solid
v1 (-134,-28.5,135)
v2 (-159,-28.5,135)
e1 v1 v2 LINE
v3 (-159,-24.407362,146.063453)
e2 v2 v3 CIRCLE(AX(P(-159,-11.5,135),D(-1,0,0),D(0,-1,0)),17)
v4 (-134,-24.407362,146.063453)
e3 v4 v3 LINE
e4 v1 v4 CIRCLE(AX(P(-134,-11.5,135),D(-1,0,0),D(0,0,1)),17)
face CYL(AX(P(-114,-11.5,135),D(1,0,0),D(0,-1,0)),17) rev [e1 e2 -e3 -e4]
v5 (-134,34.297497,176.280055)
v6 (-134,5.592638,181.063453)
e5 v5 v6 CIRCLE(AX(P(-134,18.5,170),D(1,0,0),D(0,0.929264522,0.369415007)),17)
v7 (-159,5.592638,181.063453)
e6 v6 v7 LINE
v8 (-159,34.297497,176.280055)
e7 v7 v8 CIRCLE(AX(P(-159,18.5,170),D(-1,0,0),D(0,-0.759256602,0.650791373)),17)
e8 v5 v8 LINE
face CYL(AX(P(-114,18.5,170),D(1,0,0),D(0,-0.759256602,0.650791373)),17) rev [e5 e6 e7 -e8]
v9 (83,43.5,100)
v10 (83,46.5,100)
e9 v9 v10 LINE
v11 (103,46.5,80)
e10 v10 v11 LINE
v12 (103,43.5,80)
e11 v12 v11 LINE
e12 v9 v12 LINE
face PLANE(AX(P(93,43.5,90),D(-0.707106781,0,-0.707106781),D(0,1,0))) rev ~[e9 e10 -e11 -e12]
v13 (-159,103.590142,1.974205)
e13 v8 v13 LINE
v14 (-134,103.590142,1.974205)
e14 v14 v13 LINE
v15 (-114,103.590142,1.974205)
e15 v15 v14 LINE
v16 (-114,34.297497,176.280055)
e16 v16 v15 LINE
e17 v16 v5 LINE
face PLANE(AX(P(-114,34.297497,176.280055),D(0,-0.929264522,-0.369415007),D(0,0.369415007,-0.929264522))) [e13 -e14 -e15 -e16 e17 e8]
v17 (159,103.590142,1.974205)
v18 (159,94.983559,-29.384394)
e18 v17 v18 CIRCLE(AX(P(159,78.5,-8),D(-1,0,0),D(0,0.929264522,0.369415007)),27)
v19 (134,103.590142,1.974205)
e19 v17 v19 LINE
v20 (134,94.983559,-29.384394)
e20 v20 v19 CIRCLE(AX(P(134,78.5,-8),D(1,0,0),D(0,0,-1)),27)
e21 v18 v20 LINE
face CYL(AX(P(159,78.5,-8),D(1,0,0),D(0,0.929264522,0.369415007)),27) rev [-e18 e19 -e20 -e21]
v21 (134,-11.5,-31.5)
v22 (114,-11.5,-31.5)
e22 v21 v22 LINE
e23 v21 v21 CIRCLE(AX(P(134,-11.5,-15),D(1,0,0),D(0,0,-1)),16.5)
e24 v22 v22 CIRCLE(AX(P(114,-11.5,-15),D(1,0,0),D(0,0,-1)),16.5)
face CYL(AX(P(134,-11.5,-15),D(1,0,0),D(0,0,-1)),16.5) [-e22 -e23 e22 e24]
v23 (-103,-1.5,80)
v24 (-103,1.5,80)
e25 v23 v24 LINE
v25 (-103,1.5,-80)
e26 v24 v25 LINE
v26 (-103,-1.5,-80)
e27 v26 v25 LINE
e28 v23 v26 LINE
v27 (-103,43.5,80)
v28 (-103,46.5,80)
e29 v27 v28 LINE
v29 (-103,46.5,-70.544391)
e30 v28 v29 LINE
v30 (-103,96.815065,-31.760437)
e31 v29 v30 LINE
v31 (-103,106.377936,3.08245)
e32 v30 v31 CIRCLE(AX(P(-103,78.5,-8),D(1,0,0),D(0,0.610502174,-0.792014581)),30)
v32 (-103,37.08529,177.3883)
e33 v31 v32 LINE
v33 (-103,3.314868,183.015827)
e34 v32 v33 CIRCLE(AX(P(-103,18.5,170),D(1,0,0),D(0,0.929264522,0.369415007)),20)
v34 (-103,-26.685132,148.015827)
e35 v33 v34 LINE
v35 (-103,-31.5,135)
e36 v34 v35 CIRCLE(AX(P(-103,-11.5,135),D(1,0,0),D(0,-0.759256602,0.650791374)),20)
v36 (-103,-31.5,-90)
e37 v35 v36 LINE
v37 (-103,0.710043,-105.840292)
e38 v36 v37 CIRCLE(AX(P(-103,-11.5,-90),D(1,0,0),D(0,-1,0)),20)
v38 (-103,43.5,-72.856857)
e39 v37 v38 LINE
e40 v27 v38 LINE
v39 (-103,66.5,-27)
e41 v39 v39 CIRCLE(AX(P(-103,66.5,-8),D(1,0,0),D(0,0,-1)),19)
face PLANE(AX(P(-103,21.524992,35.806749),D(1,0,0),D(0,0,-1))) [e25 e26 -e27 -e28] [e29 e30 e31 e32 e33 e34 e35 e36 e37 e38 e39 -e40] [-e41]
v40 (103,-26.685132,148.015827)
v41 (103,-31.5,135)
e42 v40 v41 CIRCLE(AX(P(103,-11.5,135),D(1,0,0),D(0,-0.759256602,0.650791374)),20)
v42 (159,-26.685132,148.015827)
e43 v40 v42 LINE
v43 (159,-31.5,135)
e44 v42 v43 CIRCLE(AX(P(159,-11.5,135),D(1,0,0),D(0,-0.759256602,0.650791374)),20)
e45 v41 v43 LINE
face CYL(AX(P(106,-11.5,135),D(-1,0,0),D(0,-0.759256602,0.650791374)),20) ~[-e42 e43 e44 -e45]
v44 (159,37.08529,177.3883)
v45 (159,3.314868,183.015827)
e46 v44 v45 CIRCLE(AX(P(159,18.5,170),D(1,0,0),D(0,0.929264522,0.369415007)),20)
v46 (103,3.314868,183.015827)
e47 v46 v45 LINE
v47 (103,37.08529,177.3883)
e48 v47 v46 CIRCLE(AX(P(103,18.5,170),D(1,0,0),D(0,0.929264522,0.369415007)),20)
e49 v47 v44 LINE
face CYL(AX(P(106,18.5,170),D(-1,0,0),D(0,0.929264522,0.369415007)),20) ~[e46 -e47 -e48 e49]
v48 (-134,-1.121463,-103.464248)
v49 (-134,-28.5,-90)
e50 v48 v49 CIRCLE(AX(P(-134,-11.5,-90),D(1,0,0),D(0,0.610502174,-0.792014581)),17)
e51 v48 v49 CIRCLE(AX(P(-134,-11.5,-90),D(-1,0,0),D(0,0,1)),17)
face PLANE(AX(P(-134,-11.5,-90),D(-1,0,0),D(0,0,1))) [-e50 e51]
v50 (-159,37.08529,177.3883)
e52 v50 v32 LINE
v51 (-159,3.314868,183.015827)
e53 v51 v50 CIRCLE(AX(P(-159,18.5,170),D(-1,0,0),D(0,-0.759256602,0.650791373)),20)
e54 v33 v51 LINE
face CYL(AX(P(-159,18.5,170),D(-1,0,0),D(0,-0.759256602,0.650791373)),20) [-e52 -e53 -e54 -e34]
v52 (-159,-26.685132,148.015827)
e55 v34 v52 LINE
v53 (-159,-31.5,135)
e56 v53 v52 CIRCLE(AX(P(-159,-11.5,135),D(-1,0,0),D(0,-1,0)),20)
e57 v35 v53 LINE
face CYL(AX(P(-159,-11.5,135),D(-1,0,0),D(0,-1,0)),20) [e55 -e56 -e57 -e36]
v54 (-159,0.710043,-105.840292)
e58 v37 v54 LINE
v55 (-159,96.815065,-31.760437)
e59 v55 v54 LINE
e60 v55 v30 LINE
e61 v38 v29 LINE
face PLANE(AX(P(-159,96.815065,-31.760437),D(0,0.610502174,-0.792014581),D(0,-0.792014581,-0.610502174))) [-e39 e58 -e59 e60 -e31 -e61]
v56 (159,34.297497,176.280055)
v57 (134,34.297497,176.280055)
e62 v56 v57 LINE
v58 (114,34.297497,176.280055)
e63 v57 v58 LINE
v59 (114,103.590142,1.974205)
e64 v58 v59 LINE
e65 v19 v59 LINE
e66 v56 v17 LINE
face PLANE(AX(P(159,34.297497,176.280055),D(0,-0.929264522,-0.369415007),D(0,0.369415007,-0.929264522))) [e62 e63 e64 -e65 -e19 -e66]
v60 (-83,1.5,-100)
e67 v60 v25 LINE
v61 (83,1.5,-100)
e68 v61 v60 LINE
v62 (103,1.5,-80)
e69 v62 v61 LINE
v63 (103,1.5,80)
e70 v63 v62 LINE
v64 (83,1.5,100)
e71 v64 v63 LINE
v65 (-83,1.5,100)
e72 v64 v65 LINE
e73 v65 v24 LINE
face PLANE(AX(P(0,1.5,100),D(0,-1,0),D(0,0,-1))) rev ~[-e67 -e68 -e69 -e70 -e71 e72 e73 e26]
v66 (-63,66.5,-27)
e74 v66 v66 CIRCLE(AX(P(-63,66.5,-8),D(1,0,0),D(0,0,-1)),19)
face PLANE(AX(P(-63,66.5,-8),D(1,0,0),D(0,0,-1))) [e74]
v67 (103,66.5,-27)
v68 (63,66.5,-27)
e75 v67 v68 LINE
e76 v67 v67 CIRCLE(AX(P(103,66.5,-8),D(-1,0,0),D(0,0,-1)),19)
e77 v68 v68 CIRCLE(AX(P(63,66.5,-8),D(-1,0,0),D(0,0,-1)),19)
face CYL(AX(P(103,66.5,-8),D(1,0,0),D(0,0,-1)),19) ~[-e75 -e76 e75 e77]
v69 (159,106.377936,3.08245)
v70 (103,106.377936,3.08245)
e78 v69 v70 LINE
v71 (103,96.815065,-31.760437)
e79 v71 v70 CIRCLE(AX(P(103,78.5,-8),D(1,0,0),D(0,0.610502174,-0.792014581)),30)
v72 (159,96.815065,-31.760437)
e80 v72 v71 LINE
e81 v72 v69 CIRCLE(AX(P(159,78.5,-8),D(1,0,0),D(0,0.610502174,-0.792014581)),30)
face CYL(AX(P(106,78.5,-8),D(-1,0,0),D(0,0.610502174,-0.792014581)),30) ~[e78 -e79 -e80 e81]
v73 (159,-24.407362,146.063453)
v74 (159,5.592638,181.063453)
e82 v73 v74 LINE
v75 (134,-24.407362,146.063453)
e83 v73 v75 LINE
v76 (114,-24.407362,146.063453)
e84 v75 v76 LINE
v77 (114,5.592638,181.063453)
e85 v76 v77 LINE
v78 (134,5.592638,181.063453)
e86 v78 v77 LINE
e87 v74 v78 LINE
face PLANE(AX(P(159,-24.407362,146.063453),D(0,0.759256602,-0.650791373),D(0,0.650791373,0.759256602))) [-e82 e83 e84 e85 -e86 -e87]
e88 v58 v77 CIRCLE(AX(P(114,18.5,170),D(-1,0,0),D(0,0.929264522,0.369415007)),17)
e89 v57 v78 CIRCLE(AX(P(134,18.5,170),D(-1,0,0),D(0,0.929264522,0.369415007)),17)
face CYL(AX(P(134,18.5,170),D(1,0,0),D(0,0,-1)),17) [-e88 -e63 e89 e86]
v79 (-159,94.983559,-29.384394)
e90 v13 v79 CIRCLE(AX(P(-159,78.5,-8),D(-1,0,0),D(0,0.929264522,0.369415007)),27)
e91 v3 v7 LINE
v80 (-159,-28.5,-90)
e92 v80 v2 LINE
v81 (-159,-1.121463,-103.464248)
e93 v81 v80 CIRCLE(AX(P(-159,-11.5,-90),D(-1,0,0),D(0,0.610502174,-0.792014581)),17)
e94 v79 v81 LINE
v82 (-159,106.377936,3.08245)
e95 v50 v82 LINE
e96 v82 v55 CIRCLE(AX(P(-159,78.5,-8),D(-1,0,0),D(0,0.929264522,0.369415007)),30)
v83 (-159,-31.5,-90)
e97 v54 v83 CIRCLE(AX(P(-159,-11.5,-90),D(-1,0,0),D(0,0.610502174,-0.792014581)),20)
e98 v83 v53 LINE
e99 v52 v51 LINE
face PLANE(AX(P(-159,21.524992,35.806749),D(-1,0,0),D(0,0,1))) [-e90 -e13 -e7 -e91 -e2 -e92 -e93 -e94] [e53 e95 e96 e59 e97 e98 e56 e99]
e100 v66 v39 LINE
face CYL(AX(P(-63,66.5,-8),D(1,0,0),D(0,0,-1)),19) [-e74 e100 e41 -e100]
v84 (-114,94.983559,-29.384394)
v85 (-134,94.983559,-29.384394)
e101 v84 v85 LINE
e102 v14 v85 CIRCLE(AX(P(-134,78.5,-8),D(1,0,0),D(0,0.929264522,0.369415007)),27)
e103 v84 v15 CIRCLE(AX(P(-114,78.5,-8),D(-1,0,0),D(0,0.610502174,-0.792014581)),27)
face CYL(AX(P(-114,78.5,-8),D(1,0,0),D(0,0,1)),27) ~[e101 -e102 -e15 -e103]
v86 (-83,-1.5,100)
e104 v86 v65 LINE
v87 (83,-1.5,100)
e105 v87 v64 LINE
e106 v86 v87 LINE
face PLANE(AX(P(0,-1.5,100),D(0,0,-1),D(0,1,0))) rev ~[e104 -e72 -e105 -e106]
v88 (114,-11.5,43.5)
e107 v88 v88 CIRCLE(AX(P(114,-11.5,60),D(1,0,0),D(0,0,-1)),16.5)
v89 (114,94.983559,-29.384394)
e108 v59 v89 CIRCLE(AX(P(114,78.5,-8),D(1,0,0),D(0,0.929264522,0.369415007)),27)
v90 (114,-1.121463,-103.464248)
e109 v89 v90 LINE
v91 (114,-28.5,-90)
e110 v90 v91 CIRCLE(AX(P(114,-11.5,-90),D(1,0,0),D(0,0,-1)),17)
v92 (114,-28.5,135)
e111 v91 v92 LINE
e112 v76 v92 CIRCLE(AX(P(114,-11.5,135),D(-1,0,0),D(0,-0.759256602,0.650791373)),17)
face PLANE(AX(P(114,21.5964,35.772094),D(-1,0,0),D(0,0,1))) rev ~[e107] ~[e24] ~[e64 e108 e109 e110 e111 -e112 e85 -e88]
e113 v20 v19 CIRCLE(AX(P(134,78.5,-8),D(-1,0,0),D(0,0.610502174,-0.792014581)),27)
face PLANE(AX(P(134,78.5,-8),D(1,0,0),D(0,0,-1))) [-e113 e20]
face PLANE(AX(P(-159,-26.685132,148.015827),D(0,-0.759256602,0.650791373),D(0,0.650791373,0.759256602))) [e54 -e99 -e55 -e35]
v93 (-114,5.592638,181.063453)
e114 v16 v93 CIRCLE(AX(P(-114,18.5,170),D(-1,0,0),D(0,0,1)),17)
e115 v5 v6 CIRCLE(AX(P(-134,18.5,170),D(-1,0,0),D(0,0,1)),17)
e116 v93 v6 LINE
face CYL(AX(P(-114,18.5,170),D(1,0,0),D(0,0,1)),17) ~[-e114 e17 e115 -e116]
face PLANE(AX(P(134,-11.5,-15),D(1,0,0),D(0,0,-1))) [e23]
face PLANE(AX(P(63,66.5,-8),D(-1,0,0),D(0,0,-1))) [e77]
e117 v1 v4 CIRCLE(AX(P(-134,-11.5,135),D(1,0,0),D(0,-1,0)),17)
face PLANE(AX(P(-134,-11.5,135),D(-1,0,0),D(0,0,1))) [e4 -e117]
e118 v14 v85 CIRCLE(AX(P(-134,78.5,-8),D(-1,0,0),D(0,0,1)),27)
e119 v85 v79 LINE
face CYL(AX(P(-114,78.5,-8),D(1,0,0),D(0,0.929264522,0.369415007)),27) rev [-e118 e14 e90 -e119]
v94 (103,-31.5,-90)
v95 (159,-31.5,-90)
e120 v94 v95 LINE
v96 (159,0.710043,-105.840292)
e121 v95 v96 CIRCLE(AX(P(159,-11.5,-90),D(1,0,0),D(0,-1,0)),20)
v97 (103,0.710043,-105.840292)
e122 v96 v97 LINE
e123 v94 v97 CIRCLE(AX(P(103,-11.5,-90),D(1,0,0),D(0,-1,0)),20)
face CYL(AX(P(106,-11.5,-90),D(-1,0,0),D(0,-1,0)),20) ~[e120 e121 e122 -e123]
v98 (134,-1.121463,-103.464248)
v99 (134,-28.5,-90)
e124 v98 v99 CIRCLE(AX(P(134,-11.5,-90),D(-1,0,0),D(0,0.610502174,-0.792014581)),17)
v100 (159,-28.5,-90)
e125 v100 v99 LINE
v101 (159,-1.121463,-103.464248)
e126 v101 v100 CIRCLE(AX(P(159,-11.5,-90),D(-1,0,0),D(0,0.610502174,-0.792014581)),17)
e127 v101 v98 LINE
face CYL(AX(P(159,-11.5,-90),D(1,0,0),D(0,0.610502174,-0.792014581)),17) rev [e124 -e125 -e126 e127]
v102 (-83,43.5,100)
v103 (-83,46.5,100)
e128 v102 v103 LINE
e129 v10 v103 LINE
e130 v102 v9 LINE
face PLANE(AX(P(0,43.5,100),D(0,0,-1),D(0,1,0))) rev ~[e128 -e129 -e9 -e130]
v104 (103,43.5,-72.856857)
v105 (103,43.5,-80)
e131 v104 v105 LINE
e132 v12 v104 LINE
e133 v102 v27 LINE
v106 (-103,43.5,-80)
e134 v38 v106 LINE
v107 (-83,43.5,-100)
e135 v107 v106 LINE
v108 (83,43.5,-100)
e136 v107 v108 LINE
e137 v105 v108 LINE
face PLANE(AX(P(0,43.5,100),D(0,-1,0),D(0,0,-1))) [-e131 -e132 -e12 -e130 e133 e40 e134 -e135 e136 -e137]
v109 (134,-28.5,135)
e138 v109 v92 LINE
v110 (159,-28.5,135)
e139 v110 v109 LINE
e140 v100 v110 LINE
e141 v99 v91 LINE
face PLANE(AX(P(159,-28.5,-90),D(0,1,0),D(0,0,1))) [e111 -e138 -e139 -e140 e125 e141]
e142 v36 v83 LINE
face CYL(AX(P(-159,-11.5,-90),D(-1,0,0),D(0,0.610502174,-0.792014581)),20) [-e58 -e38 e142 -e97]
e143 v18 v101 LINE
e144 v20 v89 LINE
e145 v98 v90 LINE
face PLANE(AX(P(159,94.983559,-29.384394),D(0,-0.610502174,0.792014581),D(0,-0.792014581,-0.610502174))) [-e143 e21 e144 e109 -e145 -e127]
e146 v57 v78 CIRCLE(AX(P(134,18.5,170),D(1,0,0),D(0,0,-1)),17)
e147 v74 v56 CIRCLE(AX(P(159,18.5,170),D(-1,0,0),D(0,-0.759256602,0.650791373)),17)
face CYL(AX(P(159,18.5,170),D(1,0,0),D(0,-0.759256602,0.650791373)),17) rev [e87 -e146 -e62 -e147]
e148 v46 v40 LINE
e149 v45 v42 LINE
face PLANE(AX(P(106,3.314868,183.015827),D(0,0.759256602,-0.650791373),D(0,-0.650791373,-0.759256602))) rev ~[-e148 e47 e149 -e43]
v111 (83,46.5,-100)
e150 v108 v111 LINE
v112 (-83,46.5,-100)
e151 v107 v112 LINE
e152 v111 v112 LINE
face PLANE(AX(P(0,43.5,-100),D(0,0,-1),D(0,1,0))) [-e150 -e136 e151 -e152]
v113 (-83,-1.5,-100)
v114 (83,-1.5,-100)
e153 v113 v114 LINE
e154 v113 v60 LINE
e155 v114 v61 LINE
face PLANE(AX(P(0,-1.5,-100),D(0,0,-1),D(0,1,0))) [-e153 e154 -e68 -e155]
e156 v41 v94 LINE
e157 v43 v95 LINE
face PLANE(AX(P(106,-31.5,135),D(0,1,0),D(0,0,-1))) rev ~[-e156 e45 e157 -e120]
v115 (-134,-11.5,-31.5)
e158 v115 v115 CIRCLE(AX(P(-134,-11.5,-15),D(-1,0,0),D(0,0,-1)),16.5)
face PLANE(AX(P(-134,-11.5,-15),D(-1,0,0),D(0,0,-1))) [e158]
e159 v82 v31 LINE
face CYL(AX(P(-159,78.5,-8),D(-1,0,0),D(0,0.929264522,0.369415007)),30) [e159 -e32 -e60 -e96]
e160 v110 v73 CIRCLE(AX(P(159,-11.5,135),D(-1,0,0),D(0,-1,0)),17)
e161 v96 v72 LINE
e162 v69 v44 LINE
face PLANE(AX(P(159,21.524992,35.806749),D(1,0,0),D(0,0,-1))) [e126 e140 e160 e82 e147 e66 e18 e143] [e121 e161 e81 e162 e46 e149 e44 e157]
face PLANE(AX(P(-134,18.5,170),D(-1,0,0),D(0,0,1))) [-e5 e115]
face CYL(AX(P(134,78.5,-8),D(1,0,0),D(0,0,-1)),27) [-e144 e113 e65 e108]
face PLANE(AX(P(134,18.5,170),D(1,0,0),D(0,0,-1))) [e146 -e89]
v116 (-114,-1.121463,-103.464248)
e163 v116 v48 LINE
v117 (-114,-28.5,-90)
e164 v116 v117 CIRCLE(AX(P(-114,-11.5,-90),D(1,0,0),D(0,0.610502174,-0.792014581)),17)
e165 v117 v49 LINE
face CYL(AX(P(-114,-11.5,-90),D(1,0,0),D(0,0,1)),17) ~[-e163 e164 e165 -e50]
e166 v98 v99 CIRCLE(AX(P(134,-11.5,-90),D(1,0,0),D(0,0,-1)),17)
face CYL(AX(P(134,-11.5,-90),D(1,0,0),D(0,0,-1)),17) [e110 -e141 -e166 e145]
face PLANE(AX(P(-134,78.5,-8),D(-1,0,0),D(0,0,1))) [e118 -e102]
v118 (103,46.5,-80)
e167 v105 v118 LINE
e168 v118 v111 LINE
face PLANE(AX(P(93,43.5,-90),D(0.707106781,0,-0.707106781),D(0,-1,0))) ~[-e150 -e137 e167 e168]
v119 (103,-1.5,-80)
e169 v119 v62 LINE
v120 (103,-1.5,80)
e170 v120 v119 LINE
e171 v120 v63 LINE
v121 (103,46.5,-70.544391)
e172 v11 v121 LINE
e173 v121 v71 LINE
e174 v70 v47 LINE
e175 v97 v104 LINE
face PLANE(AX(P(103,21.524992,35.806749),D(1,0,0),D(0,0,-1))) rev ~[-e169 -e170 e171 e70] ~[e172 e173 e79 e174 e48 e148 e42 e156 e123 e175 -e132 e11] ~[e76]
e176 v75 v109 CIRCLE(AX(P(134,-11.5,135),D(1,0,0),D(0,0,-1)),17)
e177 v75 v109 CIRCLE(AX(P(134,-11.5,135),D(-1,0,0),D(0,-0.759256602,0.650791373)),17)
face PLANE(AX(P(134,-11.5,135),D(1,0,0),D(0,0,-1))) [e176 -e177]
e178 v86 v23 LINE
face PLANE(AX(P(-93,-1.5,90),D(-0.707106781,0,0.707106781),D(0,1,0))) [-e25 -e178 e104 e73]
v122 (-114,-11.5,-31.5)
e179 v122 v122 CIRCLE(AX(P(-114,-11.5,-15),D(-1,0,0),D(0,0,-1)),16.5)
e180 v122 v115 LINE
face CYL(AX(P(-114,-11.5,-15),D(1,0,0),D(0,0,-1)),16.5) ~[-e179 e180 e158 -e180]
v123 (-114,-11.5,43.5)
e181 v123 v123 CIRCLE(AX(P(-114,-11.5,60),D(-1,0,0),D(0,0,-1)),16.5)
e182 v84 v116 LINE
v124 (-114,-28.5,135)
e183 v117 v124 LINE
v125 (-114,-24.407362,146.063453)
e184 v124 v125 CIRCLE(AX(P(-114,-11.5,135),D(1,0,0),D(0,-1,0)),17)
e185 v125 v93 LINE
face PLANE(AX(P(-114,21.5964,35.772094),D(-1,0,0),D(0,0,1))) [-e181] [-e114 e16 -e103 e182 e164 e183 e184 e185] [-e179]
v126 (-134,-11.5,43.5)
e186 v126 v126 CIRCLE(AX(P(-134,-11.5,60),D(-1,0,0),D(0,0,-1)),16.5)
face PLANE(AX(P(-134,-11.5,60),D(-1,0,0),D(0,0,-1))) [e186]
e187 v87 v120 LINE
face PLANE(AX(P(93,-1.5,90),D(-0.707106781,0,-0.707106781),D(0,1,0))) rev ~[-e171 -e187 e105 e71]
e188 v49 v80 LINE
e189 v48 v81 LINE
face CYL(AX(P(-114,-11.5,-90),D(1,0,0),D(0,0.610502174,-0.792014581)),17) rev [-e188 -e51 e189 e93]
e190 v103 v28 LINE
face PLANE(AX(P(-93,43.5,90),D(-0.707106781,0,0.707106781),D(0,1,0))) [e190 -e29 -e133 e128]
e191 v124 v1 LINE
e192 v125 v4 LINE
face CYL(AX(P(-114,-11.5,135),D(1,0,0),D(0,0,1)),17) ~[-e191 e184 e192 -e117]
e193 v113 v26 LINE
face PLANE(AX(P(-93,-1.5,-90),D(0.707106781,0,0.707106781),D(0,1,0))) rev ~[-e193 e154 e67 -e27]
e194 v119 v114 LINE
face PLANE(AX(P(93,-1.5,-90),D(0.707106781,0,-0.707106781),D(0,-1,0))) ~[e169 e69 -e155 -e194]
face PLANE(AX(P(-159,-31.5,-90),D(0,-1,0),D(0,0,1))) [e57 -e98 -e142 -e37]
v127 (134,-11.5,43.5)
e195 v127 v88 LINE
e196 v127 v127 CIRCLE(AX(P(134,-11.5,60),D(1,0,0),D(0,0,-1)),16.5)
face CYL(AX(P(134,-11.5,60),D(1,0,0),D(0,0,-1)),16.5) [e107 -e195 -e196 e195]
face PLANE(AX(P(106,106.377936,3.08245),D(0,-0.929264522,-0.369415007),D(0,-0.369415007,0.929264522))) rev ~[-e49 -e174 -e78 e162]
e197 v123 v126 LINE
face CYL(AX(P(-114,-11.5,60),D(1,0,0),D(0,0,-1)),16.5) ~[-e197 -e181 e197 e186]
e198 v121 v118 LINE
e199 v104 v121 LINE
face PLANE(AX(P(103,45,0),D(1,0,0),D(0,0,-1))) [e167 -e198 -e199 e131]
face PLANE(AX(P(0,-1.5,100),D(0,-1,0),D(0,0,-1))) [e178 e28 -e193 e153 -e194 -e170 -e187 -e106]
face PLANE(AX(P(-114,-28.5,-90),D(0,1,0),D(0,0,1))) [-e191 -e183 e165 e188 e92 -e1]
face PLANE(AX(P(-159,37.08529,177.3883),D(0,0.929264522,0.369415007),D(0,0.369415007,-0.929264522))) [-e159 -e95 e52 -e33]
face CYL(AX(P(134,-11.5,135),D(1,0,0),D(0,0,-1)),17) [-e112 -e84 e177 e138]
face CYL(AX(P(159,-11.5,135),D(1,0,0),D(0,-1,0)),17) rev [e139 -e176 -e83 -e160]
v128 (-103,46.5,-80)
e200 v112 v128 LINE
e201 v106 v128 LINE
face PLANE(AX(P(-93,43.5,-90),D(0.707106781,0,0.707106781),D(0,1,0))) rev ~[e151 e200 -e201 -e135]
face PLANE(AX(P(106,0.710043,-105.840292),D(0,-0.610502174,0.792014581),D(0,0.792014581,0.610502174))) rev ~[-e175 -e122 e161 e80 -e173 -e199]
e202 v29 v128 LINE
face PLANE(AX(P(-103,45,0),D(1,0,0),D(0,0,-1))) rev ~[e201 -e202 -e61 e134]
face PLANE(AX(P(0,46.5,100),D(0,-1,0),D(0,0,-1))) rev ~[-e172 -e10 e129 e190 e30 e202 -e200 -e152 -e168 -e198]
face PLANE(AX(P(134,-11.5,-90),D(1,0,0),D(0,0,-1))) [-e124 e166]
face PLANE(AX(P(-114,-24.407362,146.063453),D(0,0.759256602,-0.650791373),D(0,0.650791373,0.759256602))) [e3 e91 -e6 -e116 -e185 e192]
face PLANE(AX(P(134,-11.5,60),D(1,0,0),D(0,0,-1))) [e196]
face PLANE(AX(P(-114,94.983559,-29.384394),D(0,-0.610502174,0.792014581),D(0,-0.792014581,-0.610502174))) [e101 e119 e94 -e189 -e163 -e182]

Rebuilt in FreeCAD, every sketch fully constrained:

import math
import FreeCAD as App
import Part
import Sketcher

V = App.Vector


def edges_at(feature, points):
    """Names of the edges that pass closest to the given points."""
    edges = feature.Shape.Edges
    near = lambda p: min(range(len(edges)), key=lambda i: edges[i].distToShape(Part.Vertex(*p))[0])
    return sorted({f"Edge{near(p) + 1}" for p in points})


def add_polygon(sketch, points):
    """Adds a closed chain of lines whose ends are joined by coincident constraints."""
    first, n = sketch.GeometryCount, len(points)
    for a, b in zip(points, points[1:] + points[:1]):
        sketch.addGeometry(Part.LineSegment(App.Vector(*a, 0), App.Vector(*b, 0)), False)
    for i in range(n):
        sketch.addConstraint(Sketcher.Constraint("Coincident", first + i, 2, first + (i + 1) % n, 1))

doc = App.newDocument("Part")
body = doc.addObject("PartDesign::Body", "Body")

sketch1 = body.newObject("Sketcher::SketchObject", "Sketch")
sketch1.AttachmentSupport = (doc.getObject("YZ_Plane"), [""])
sketch1.MapMode = "FlatFace"
add_polygon(sketch1, [(1.5, 100), (-1.5, 100), (-1.5, -100), (1.5, -100)])
sketch1.addConstraint([
    Sketcher.Constraint("Horizontal", 0),
    Sketcher.Constraint("Vertical", 1),
    Sketcher.Constraint("Horizontal", 2),
    Sketcher.Constraint("Vertical", 3),
    Sketcher.Constraint("Symmetric", 0, 2, 2, 2, -1, 1),
    Sketcher.Constraint("DistanceX", 0, 2, 0, 1, 3.0),
    Sketcher.Constraint("DistanceY", 1, 2, 1, 1, 200.0),
])
pad1 = body.newObject("PartDesign::Pad", "Pad")
pad1.Profile = sketch1
pad1.Length = 206
pad1.Midplane = True
doc.recompute()

chamfer = body.newObject("PartDesign::Chamfer", "Chamfer")
chamfer.Base = (pad1, edges_at(pad1, [
    (103, 0, 100),
    (103, 0, -100),
    (-103, 0, 100),
    (-103, 0, -100),
]))
chamfer.Size = 20
body2 = doc.addObject("PartDesign::Body", "Body001")

sketch2 = body2.newObject("Sketcher::SketchObject", "Sketch001")
sketch2.AttachmentSupport = (doc.getObject("YZ_Plane001"), [""])
sketch2.MapMode = "FlatFace"
add_polygon(sketch2, [(46.5, 100), (43.5, 100), (43.5, -100), (46.5, -100)])
sketch2.addConstraint([
    Sketcher.Constraint("Horizontal", 0),
    Sketcher.Constraint("Vertical", 1),
    Sketcher.Constraint("Horizontal", 2),
    Sketcher.Constraint("Vertical", 3),
    Sketcher.Constraint("DistanceX", 0, 2, 0, 1, 3.0),
    Sketcher.Constraint("DistanceY", 1, 2, 1, 1, 200.0),
    Sketcher.Constraint("DistanceY", -1, 1, 0, 2, 100.0),
    Sketcher.Constraint("DistanceX", -1, 1, 0, 2, 43.5),
])
pad2 = body2.newObject("PartDesign::Pad", "Pad001")
pad2.Profile = sketch2
pad2.Length = 206
pad2.Midplane = True
doc.recompute()

chamfer2 = body2.newObject("PartDesign::Chamfer", "Chamfer001")
chamfer2.Base = (pad2, edges_at(pad2, [
    (103, 45, -100),
    (103, 45, 100),
    (-103, 45, -100),
    (-103, 45, 100),
]))
chamfer2.Size = 20
body.AllowCompound = True
doc.recompute()

boolean = body.newObject("PartDesign::Boolean", "Boolean")
boolean.Type = "Fuse"
boolean.addObjects([body2])

sketch3 = body.newObject("Sketcher::SketchObject", "Sketch002")
sketch3.AttachmentSupport = (doc.getObject("YZ_Plane"), [""])
sketch3.MapMode = "FlatFace"
sketch3.AttachmentOffset = App.Placement(V(0, 0, 103), App.Rotation())
sketch3.addGeometry([
    Part.LineSegment(V(1, -106, 0), V(97, -32, 0)),
    Part.ArcOfCircle(Part.Circle(V(78, -8, 0), V(0, 0, 1), 30), math.radians(-52), math.radians(22)),
    Part.LineSegment(V(106, 3, 0), V(37, 177, 0)),
    Part.ArcOfCircle(Part.Circle(V(18, 170, 0), V(0, 0, 1), 20), math.radians(22), math.radians(139)),
    Part.LineSegment(V(3, 183, 0), V(-27, 148, 0)),
    Part.ArcOfCircle(Part.Circle(V(-12, 135, 0), V(0, 0, 1), 20), math.radians(139), math.radians(180)),
    Part.LineSegment(V(-32, 135, 0), V(-32, -90, 0)),
    Part.ArcOfCircle(Part.Circle(V(-12, -90, 0), V(0, 0, 1), 20), math.radians(180), math.radians(308)),
], False)
sketch3.addConstraint([
    Sketcher.Constraint("Tangent", 0, 2, 1, 1),
    Sketcher.Constraint("Tangent", 1, 2, 2, 1),
    Sketcher.Constraint("Tangent", 2, 2, 3, 1),
    Sketcher.Constraint("Tangent", 3, 2, 4, 1),
    Sketcher.Constraint("Tangent", 4, 2, 5, 1),
    Sketcher.Constraint("Tangent", 5, 2, 6, 1),
    Sketcher.Constraint("Tangent", 6, 2, 7, 1),
    Sketcher.Constraint("Tangent", 7, 2, 0, 1),
    Sketcher.Constraint("Vertical", 6),
    Sketcher.Constraint("Equal", 3, 5),
    Sketcher.Constraint("Equal", 5, 7),
    Sketcher.Constraint("Radius", 1, 30.0),
    Sketcher.Constraint("Radius", 3, 20.0),
    Sketcher.Constraint("DistanceY", 6, 2, 6, 1, 225.0),
    Sketcher.Constraint("DistanceY", 1, 3, -1, 1, 8.0),
    Sketcher.Constraint("DistanceY", -1, 1, 3, 3, 170.0),
    Sketcher.Constraint("DistanceY", -1, 1, 5, 3, 135.0),
    Sketcher.Constraint("DistanceX", 3, 3, 1, 3, 60.0),
    Sketcher.Constraint("DistanceX", 5, 3, 3, 3, 30.0),
    Sketcher.Constraint("DistanceX", -1, 1, 1, 3, 78.5),
])
pad3 = body.newObject("PartDesign::Pad", "Pad002")
pad3.Profile = sketch3
pad3.Length = 3

sketch4 = body.newObject("Sketcher::SketchObject", "Sketch003")
sketch4.AttachmentSupport = (doc.getObject("YZ_Plane"), [""])
sketch4.MapMode = "FlatFace"
sketch4.AttachmentOffset = App.Placement(V(0, 0, -106), App.Rotation())
sketch4.addGeometry([
    Part.LineSegment(V(97, -32, 0), V(1, -106, 0)),
    Part.ArcOfCircle(Part.Circle(V(-12, -90, 0), V(0, 0, 1), 20), math.radians(180), math.radians(308)),
    Part.LineSegment(V(-32, -90, 0), V(-32, 135, 0)),
    Part.ArcOfCircle(Part.Circle(V(-12, 135, 0), V(0, 0, 1), 20), math.radians(139), math.radians(180)),
    Part.LineSegment(V(-27, 148, 0), V(3, 183, 0)),
    Part.ArcOfCircle(Part.Circle(V(18, 170, 0), V(0, 0, 1), 20), math.radians(22), math.radians(139)),
    Part.LineSegment(V(37, 177, 0), V(106, 3, 0)),
    Part.ArcOfCircle(Part.Circle(V(78, -8, 0), V(0, 0, 1), 30), math.radians(-52), math.radians(22)),
], False)
sketch4.addConstraint([
    Sketcher.Constraint("Tangent", 0, 2, 1, 2),
    Sketcher.Constraint("Tangent", 1, 1, 2, 1),
    Sketcher.Constraint("Tangent", 2, 2, 3, 2),
    Sketcher.Constraint("Tangent", 3, 1, 4, 1),
    Sketcher.Constraint("Tangent", 4, 2, 5, 2),
    Sketcher.Constraint("Tangent", 5, 1, 6, 1),
    Sketcher.Constraint("Tangent", 6, 2, 7, 2),
    Sketcher.Constraint("Tangent", 7, 1, 0, 1),
    Sketcher.Constraint("Vertical", 2),
    Sketcher.Constraint("Equal", 1, 3),
    Sketcher.Constraint("Equal", 3, 5),
    Sketcher.Constraint("Radius", 1, 20.0),
    Sketcher.Constraint("Radius", 7, 30.0),
    Sketcher.Constraint("DistanceY", 2, 1, 2, 2, 225.0),
    Sketcher.Constraint("DistanceY", 1, 3, -1, 1, 90.0),
    Sketcher.Constraint("DistanceY", -1, 1, 5, 3, 170.0),
    Sketcher.Constraint("DistanceY", 7, 3, -1, 1, 8.0),
    Sketcher.Constraint("DistanceX", 3, 3, 5, 3, 30.0),
    Sketcher.Constraint("DistanceX", 1, 3, 7, 3, 90.0),
    Sketcher.Constraint("DistanceX", 1, 3, -1, 1, 11.5),
])
pad4 = body.newObject("PartDesign::Pad", "Pad003")
pad4.Profile = sketch4
pad4.Length = 3

sketch5 = body.newObject("Sketcher::SketchObject", "Sketch004")
sketch5.AttachmentSupport = (doc.getObject("YZ_Plane"), [""])
sketch5.MapMode = "FlatFace"
sketch5.AttachmentOffset = App.Placement(V(0, 0, 106), App.Rotation())
sketch5.addGeometry([
    Part.LineSegment(V(106, 3, 0), V(37, 177, 0)),
    Part.ArcOfCircle(Part.Circle(V(18, 170, 0), V(0, 0, 1), 20), math.radians(22), math.radians(139)),
    Part.LineSegment(V(3, 183, 0), V(-27, 148, 0)),
    Part.ArcOfCircle(Part.Circle(V(-12, 135, 0), V(0, 0, 1), 20), math.radians(139), math.radians(180)),
    Part.LineSegment(V(-32, 135, 0), V(-32, -90, 0)),
    Part.ArcOfCircle(Part.Circle(V(-12, -90, 0), V(0, 0, 1), 20), math.radians(180), math.radians(308)),
    Part.LineSegment(V(1, -106, 0), V(97, -32, 0)),
    Part.ArcOfCircle(Part.Circle(V(78, -8, 0), V(0, 0, 1), 30), math.radians(-52), math.radians(22)),
], False)
sketch5.addConstraint([
    Sketcher.Constraint("Tangent", 0, 2, 1, 1),
    Sketcher.Constraint("Tangent", 1, 2, 2, 1),
    Sketcher.Constraint("Tangent", 2, 2, 3, 1),
    Sketcher.Constraint("Tangent", 3, 2, 4, 1),
    Sketcher.Constraint("Tangent", 4, 2, 5, 1),
    Sketcher.Constraint("Tangent", 5, 2, 6, 1),
    Sketcher.Constraint("Tangent", 6, 2, 7, 1),
    Sketcher.Constraint("Tangent", 7, 2, 0, 1),
    Sketcher.Constraint("Vertical", 4),
    Sketcher.Constraint("Equal", 1, 3),
    Sketcher.Constraint("Equal", 3, 5),
    Sketcher.Constraint("Radius", 1, 20.0),
    Sketcher.Constraint("Radius", 7, 30.0),
    Sketcher.Constraint("DistanceY", 4, 2, 4, 1, 225.0),
    Sketcher.Constraint("DistanceY", -1, 1, 1, 3, 170.0),
    Sketcher.Constraint("DistanceY", -1, 1, 3, 3, 135.0),
    Sketcher.Constraint("DistanceY", 7, 3, -1, 1, 8.0),
    Sketcher.Constraint("DistanceX", 3, 3, 1, 3, 30.0),
    Sketcher.Constraint("DistanceX", 5, 3, 7, 3, 90.0),
    Sketcher.Constraint("DistanceX", -1, 1, 1, 3, 18.5),
])
pad5 = body.newObject("PartDesign::Pad", "Pad004")
pad5.Profile = sketch5
pad5.Length = 53

sketch6 = body.newObject("Sketcher::SketchObject", "Sketch005")
sketch6.AttachmentSupport = (doc.getObject("YZ_Plane"), [""])
sketch6.MapMode = "FlatFace"
sketch6.AttachmentOffset = App.Placement(V(0, 0, 159), App.Rotation())
sketch6.addGeometry([
    Part.LineSegment(V(104, 2, 0), V(34, 176, 0)),
    Part.ArcOfCircle(Part.Circle(V(18, 170, 0), V(0, 0, 1), 17), math.radians(22), math.radians(139)),
    Part.LineSegment(V(6, 181, 0), V(-24, 146, 0)),
    Part.ArcOfCircle(Part.Circle(V(-11, 135, 0), V(0, 0, 1), 17), math.radians(139), math.radians(180)),
    Part.LineSegment(V(-28, 135, 0), V(-28, -90, 0)),
    Part.ArcOfCircle(Part.Circle(V(-12, -90, 0), V(0, 0, 1), 17), math.radians(180), math.radians(308)),
    Part.LineSegment(V(-1, -103, 0), V(95, -29, 0)),
    Part.ArcOfCircle(Part.Circle(V(78, -8, 0), V(0, 0, 1), 27), math.radians(-52), math.radians(22)),
], False)
sketch6.addConstraint([
    Sketcher.Constraint("Tangent", 0, 2, 1, 1),
    Sketcher.Constraint("Tangent", 1, 2, 2, 1),
    Sketcher.Constraint("Tangent", 2, 2, 3, 1),
    Sketcher.Constraint("Tangent", 3, 2, 4, 1),
    Sketcher.Constraint("Tangent", 4, 2, 5, 1),
    Sketcher.Constraint("Tangent", 5, 2, 6, 1),
    Sketcher.Constraint("Tangent", 6, 2, 7, 1),
    Sketcher.Constraint("Tangent", 7, 2, 0, 1),
    Sketcher.Constraint("Vertical", 4),
    Sketcher.Constraint("Equal", 1, 3),
    Sketcher.Constraint("Equal", 3, 5),
    Sketcher.Constraint("Radius", 1, 17.0),
    Sketcher.Constraint("Radius", 7, 27.0),
    Sketcher.Constraint("DistanceY", 4, 2, 4, 1, 225.0),
    Sketcher.Constraint("DistanceY", -1, 1, 1, 3, 170.0),
    Sketcher.Constraint("DistanceY", -1, 1, 3, 3, 135.0),
    Sketcher.Constraint("DistanceY", 7, 3, -1, 1, 8.0),
    Sketcher.Constraint("DistanceX", 3, 3, 1, 3, 30.0),
    Sketcher.Constraint("DistanceX", 5, 3, 7, 3, 90.0),
    Sketcher.Constraint("DistanceX", -1, 1, 1, 3, 18.5),
])
pocket1 = body.newObject("PartDesign::Pocket", "Pocket")
pocket1.Profile = sketch6
pocket1.Length = 45

sketch7 = body.newObject("Sketcher::SketchObject", "Sketch006")
sketch7.AttachmentSupport = (doc.getObject("YZ_Plane"), [""])
sketch7.MapMode = "FlatFace"
sketch7.AttachmentOffset = App.Placement(V(0, 0, -159), App.Rotation())
sketch7.addGeometry([
    Part.LineSegment(V(97, -32, 0), V(1, -106, 0)),
    Part.ArcOfCircle(Part.Circle(V(-12, -90, 0), V(0, 0, 1), 20), math.radians(180), math.radians(308)),
    Part.LineSegment(V(-32, -90, 0), V(-32, 135, 0)),
    Part.ArcOfCircle(Part.Circle(V(-12, 135, 0), V(0, 0, 1), 20), math.radians(139), math.radians(180)),
    Part.LineSegment(V(-27, 148, 0), V(3, 183, 0)),
    Part.ArcOfCircle(Part.Circle(V(18, 170, 0), V(0, 0, 1), 20), math.radians(22), math.radians(139)),
    Part.LineSegment(V(37, 177, 0), V(106, 3, 0)),
    Part.ArcOfCircle(Part.Circle(V(78, -8, 0), V(0, 0, 1), 30), math.radians(-52), math.radians(22)),
], False)
sketch7.addConstraint([
    Sketcher.Constraint("Tangent", 0, 2, 1, 2),
    Sketcher.Constraint("Tangent", 1, 1, 2, 1),
    Sketcher.Constraint("Tangent", 2, 2, 3, 2),
    Sketcher.Constraint("Tangent", 3, 1, 4, 1),
    Sketcher.Constraint("Tangent", 4, 2, 5, 2),
    Sketcher.Constraint("Tangent", 5, 1, 6, 1),
    Sketcher.Constraint("Tangent", 6, 2, 7, 2),
    Sketcher.Constraint("Tangent", 7, 1, 0, 1),
    Sketcher.Constraint("Vertical", 2),
    Sketcher.Constraint("Equal", 1, 3),
    Sketcher.Constraint("Equal", 3, 5),
    Sketcher.Constraint("Radius", 1, 20.0),
    Sketcher.Constraint("Radius", 7, 30.0),
    Sketcher.Constraint("DistanceY", 2, 1, 2, 2, 225.0),
    Sketcher.Constraint("DistanceY", 1, 3, -1, 1, 90.0),
    Sketcher.Constraint("DistanceY", -1, 1, 5, 3, 170.0),
    Sketcher.Constraint("DistanceY", 7, 3, -1, 1, 8.0),
    Sketcher.Constraint("DistanceX", 3, 3, 5, 3, 30.0),
    Sketcher.Constraint("DistanceX", 1, 3, 7, 3, 90.0),
    Sketcher.Constraint("DistanceX", 1, 3, -1, 1, 11.5),
])
pad6 = body.newObject("PartDesign::Pad", "Pad005")
pad6.Profile = sketch7
pad6.Length = 53

sketch8 = body.newObject("Sketcher::SketchObject", "Sketch007")
sketch8.AttachmentSupport = (doc.getObject("YZ_Plane"), [""])
sketch8.MapMode = "FlatFace"
sketch8.AttachmentOffset = App.Placement(V(0, 0, -114), App.Rotation())
sketch8.addGeometry([
    Part.LineSegment(V(95, -29, 0), V(-1, -103, 0)),
    Part.ArcOfCircle(Part.Circle(V(-12, -90, 0), V(0, 0, 1), 17), math.radians(180), math.radians(308)),
    Part.LineSegment(V(-28, -90, 0), V(-28, 135, 0)),
    Part.ArcOfCircle(Part.Circle(V(-11, 135, 0), V(0, 0, 1), 17), math.radians(139), math.radians(180)),
    Part.LineSegment(V(-24, 146, 0), V(6, 181, 0)),
    Part.ArcOfCircle(Part.Circle(V(18, 170, 0), V(0, 0, 1), 17), math.radians(22), math.radians(139)),
    Part.LineSegment(V(34, 176, 0), V(104, 2, 0)),
    Part.ArcOfCircle(Part.Circle(V(78, -8, 0), V(0, 0, 1), 27), math.radians(-52), math.radians(22)),
], False)
sketch8.addConstraint([
    Sketcher.Constraint("Tangent", 0, 2, 1, 2),
    Sketcher.Constraint("Tangent", 1, 1, 2, 1),
    Sketcher.Constraint("Tangent", 2, 2, 3, 2),
    Sketcher.Constraint("Tangent", 3, 1, 4, 1),
    Sketcher.Constraint("Tangent", 4, 2, 5, 2),
    Sketcher.Constraint("Tangent", 5, 1, 6, 1),
    Sketcher.Constraint("Tangent", 6, 2, 7, 2),
    Sketcher.Constraint("Tangent", 7, 1, 0, 1),
    Sketcher.Constraint("Vertical", 2),
    Sketcher.Constraint("Equal", 1, 3),
    Sketcher.Constraint("Equal", 3, 5),
    Sketcher.Constraint("Radius", 1, 17.0),
    Sketcher.Constraint("Radius", 7, 27.0),
    Sketcher.Constraint("DistanceY", 2, 1, 2, 2, 225.0),
    Sketcher.Constraint("DistanceY", 1, 3, -1, 1, 90.0),
    Sketcher.Constraint("DistanceY", -1, 1, 5, 3, 170.0),
    Sketcher.Constraint("DistanceY", 7, 3, -1, 1, 8.0),
    Sketcher.Constraint("DistanceX", 3, 3, 5, 3, 30.0),
    Sketcher.Constraint("DistanceX", 1, 3, 7, 3, 90.0),
    Sketcher.Constraint("DistanceX", 1, 3, -1, 1, 11.5),
])
pocket2 = body.newObject("PartDesign::Pocket", "Pocket001")
pocket2.Profile = sketch8
pocket2.Length = 45

sketch9 = body.newObject("Sketcher::SketchObject", "Sketch008")
sketch9.AttachmentSupport = (doc.getObject("YZ_Plane"), [""])
sketch9.MapMode = "FlatFace"
sketch9.AttachmentOffset = App.Placement(V(0, 0, 134), App.Rotation())
sketch9.addGeometry([
    Part.Circle(V(78, -8, 0), V(0, 0, 1), 27),
    Part.Circle(V(18, 170, 0), V(0, 0, 1), 17),
    Part.Circle(V(-12, 135, 0), V(0, 0, 1), 17),
    Part.Circle(V(-12, 60, 0), V(0, 0, 1), 16),
    Part.Circle(V(-12, -15, 0), V(0, 0, 1), 16),
    Part.Circle(V(-12, -90, 0), V(0, 0, 1), 17),
], False)
sketch9.addConstraint([
    Sketcher.Constraint("Equal", 1, 2),
    Sketcher.Constraint("Equal", 3, 4),
    Sketcher.Constraint("Equal", 2, 5),
    Sketcher.Constraint("Vertical", 2, 3, 3, 3),
    Sketcher.Constraint("Vertical", 3, 3, 4, 3),
    Sketcher.Constraint("Vertical", 4, 3, 5, 3),
    Sketcher.Constraint("Diameter", 0, 54.0),
    Sketcher.Constraint("Diameter", 1, 34.0),
    Sketcher.Constraint("Diameter", 3, 33.0),
    Sketcher.Constraint("DistanceY", 0, 3, -1, 1, 8.0),
    Sketcher.Constraint("DistanceY", -1, 1, 1, 3, 170.0),
    Sketcher.Constraint("DistanceY", -1, 1, 2, 3, 135.0),
    Sketcher.Constraint("DistanceY", -1, 1, 3, 3, 60.0),
    Sketcher.Constraint("DistanceY", 4, 3, -1, 1, 15.0),
    Sketcher.Constraint("DistanceY", 5, 3, -1, 1, 90.0),
    Sketcher.Constraint("DistanceX", 1, 3, 0, 3, 60.0),
    Sketcher.Constraint("DistanceX", 2, 3, 1, 3, 30.0),
    Sketcher.Constraint("DistanceX", -1, 1, 0, 3, 78.5),
])
pad7 = body.newObject("PartDesign::Pad", "Pad006")
pad7.Profile = sketch9
pad7.Length = 20
pad7.Reversed = True

sketch10 = body.newObject("Sketcher::SketchObject", "Sketch009")
sketch10.AttachmentSupport = (doc.getObject("YZ_Plane"), [""])
sketch10.MapMode = "FlatFace"
sketch10.AttachmentOffset = App.Placement(V(0, 0, -114), App.Rotation())
sketch10.addGeometry([
    Part.Circle(V(78, -8, 0), V(0, 0, 1), 27),
    Part.Circle(V(-12, -90, 0), V(0, 0, 1), 17),
    Part.Circle(V(-12, -15, 0), V(0, 0, 1), 16),
    Part.Circle(V(-12, 60, 0), V(0, 0, 1), 16),
    Part.Circle(V(-12, 135, 0), V(0, 0, 1), 17),
    Part.Circle(V(18, 170, 0), V(0, 0, 1), 17),
], False)
sketch10.addConstraint([
    Sketcher.Constraint("Equal", 2, 3),
    Sketcher.Constraint("Equal", 1, 4),
    Sketcher.Constraint("Equal", 4, 5),
    Sketcher.Constraint("Vertical", 1, 3, 2, 3),
    Sketcher.Constraint("Vertical", 2, 3, 3, 3),
    Sketcher.Constraint("Vertical", 3, 3, 4, 3),
    Sketcher.Constraint("Diameter", 0, 54.0),
    Sketcher.Constraint("Diameter", 1, 34.0),
    Sketcher.Constraint("Diameter", 2, 33.0),
    Sketcher.Constraint("DistanceY", 0, 3, -1, 1, 8.0),
    Sketcher.Constraint("DistanceY", 1, 3, -1, 1, 90.0),
    Sketcher.Constraint("DistanceY", 2, 3, -1, 1, 15.0),
    Sketcher.Constraint("DistanceY", -1, 1, 3, 3, 60.0),
    Sketcher.Constraint("DistanceY", -1, 1, 4, 3, 135.0),
    Sketcher.Constraint("DistanceY", -1, 1, 5, 3, 170.0),
    Sketcher.Constraint("DistanceX", 1, 3, 0, 3, 90.0),
    Sketcher.Constraint("DistanceX", 4, 3, 5, 3, 30.0),
    Sketcher.Constraint("DistanceX", -1, 1, 0, 3, 78.5),
])
pad8 = body.newObject("PartDesign::Pad", "Pad007")
pad8.Profile = sketch10
pad8.Length = 20
pad8.Reversed = True

sketch11 = body.newObject("Sketcher::SketchObject", "Sketch010")
sketch11.AttachmentSupport = (doc.getObject("YZ_Plane"), [""])
sketch11.MapMode = "FlatFace"
sketch11.AttachmentOffset = App.Placement(V(0, 0, 103), App.Rotation())
sketch11.addGeometry(Part.Circle(V(66, -8, 0), V(0, 0, 1), 19), False)
sketch11.addConstraint([
    Sketcher.Constraint("Diameter", 0, 38.0),
    Sketcher.Constraint("DistanceY", 0, 3, -1, 1, 8.0),
    Sketcher.Constraint("DistanceX", -1, 1, 0, 3, 66.5),
])
pad9 = body.newObject("PartDesign::Pad", "Pad008")
pad9.Profile = sketch11
pad9.Length = 40
pad9.Reversed = True

sketch12 = body.newObject("Sketcher::SketchObject", "Sketch011")
sketch12.AttachmentSupport = (doc.getObject("YZ_Plane"), [""])
sketch12.MapMode = "FlatFace"
sketch12.AttachmentOffset = App.Placement(V(0, 0, -63), App.Rotation())
sketch12.addGeometry(Part.Circle(V(66, -8, 0), V(0, 0, 1), 19), False)
sketch12.addConstraint([
    Sketcher.Constraint("Diameter", 0, 38.0),
    Sketcher.Constraint("DistanceY", 0, 3, -1, 1, 8.0),
    Sketcher.Constraint("DistanceX", -1, 1, 0, 3, 66.5),
])
pad10 = body.newObject("PartDesign::Pad", "Pad009")
pad10.Profile = sketch12
pad10.Length = 40
pad10.Reversed = True

doc.recompute()
